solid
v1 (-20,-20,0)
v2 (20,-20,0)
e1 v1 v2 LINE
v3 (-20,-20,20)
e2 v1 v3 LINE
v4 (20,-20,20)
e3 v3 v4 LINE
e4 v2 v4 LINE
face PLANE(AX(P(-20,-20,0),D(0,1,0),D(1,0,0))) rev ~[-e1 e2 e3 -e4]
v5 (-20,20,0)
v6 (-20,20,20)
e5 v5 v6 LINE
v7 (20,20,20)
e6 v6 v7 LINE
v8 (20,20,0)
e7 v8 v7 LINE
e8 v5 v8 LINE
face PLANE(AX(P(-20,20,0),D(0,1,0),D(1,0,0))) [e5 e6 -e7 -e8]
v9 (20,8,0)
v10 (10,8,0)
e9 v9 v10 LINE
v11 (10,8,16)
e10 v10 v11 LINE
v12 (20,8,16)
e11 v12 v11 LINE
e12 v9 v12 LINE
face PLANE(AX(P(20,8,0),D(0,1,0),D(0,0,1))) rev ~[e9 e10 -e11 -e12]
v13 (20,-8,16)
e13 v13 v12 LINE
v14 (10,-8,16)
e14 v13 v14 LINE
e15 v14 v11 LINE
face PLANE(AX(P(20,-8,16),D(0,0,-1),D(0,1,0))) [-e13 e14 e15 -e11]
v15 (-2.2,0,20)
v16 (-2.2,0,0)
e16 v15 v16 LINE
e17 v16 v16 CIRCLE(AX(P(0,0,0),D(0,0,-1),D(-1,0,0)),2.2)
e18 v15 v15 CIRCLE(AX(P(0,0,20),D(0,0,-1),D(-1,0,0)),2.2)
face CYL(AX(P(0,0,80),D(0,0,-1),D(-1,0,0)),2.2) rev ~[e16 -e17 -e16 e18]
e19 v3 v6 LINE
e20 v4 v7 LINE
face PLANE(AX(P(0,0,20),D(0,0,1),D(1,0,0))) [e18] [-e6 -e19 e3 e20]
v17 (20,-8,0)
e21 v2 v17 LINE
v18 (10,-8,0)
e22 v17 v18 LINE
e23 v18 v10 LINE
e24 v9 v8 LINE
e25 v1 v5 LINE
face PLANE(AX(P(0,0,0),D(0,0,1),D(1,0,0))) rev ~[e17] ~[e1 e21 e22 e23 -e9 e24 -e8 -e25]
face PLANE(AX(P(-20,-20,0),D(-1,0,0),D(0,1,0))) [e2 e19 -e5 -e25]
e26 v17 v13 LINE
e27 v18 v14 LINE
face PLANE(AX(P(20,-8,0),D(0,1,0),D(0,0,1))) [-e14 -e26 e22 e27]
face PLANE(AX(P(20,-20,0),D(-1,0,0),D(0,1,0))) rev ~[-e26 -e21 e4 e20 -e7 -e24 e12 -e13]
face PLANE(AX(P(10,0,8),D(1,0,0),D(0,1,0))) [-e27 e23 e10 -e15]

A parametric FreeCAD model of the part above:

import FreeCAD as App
import Part
import Sketcher

V = App.Vector


def add_polygon(sketch, points):
    """Adds a closed chain of lines whose ends are joined by coincident constraints."""
    first, n = sketch.GeometryCount, len(points)
    for a, b in zip(points, points[1:] + points[:1]):
        sketch.addGeometry(Part.LineSegment(App.Vector(*a, 0), App.Vector(*b, 0)), False)
    for i in range(n):
        sketch.addConstraint(Sketcher.Constraint("Coincident", first + i, 2, first + (i + 1) % n, 1))

doc = App.newDocument("Part")
body = doc.addObject("PartDesign::Body", "Body")

sketch1 = body.newObject("Sketcher::SketchObject", "Sketch")
sketch1.AttachmentSupport = (doc.getObject("XY_Plane"), [""])
sketch1.MapMode = "FlatFace"
add_polygon(sketch1, [(-20, 20), (-20, -20), (20, -20), (20, 20)])
sketch1.addConstraint(Sketcher.Constraint("Vertical", 0))
sketch1.addConstraint(Sketcher.Constraint("Horizontal", 1))
sketch1.addConstraint(Sketcher.Constraint("Vertical", 2))
sketch1.addConstraint(Sketcher.Constraint("Horizontal", 3))
sketch1.addConstraint(Sketcher.Constraint("Symmetric", 0, 2, 2, 2, -1, 1))
sketch1.addConstraint(Sketcher.Constraint("Equal", 3, 0))
sketch1.addConstraint(Sketcher.Constraint("DistanceX", 1, 1, 1, 2, 40.0))
pad1 = body.newObject("PartDesign::Pad", "Pad")
pad1.Profile = sketch1
pad1.Length = 20

sketch2 = body.newObject("Sketcher::SketchObject", "Sketch001")
sketch2.AttachmentSupport = (doc.getObject("YZ_Plane"), [""])
sketch2.MapMode = "FlatFace"
sketch2.AttachmentOffset = App.Placement(V(0, 0, 20), App.Rotation())
add_polygon(sketch2, [(-8, 16), (-8, 0), (8, 0), (8, 16)])
sketch2.addConstraint(Sketcher.Constraint("Vertical", 0))
sketch2.addConstraint(Sketcher.Constraint("Horizontal", 1))
sketch2.addConstraint(Sketcher.Constraint("Vertical", 2))
sketch2.addConstraint(Sketcher.Constraint("Horizontal", 3))
sketch2.addConstraint(Sketcher.Constraint("Symmetric", 0, 2, 1, 2, -1, 1))
sketch2.addConstraint(Sketcher.Constraint("Equal", 3, 0))
sketch2.addConstraint(Sketcher.Constraint("DistanceX", 1, 1, 1, 2, 16.0))
pocket1 = body.newObject("PartDesign::Pocket", "Pocket")
pocket1.Profile = sketch2
pocket1.Length = 10

sketch3 = body.newObject("Sketcher::SketchObject", "Sketch002")
sketch3.AttachmentSupport = (doc.getObject("XY_Plane"), [""])
sketch3.MapMode = "FlatFace"
sketch3.AttachmentOffset = App.Placement(V(0, 0, 20), App.Rotation())
sketch3.addGeometry(Part.Circle(V(0, 0, 0), V(0, 0, 1), 2.2), False)
sketch3.addConstraint(Sketcher.Constraint("Coincident", 0, 3, -1, 1))
sketch3.addConstraint(Sketcher.Constraint("Diameter", 0, 4.4))
doc.recompute()
hole = body.newObject("PartDesign::Hole", "Hole")
hole.Profile = sketch3
hole.ThreadType = "None"
hole.Diameter = 4.4
hole.DepthType = "ThroughAll"

doc.recompute()
